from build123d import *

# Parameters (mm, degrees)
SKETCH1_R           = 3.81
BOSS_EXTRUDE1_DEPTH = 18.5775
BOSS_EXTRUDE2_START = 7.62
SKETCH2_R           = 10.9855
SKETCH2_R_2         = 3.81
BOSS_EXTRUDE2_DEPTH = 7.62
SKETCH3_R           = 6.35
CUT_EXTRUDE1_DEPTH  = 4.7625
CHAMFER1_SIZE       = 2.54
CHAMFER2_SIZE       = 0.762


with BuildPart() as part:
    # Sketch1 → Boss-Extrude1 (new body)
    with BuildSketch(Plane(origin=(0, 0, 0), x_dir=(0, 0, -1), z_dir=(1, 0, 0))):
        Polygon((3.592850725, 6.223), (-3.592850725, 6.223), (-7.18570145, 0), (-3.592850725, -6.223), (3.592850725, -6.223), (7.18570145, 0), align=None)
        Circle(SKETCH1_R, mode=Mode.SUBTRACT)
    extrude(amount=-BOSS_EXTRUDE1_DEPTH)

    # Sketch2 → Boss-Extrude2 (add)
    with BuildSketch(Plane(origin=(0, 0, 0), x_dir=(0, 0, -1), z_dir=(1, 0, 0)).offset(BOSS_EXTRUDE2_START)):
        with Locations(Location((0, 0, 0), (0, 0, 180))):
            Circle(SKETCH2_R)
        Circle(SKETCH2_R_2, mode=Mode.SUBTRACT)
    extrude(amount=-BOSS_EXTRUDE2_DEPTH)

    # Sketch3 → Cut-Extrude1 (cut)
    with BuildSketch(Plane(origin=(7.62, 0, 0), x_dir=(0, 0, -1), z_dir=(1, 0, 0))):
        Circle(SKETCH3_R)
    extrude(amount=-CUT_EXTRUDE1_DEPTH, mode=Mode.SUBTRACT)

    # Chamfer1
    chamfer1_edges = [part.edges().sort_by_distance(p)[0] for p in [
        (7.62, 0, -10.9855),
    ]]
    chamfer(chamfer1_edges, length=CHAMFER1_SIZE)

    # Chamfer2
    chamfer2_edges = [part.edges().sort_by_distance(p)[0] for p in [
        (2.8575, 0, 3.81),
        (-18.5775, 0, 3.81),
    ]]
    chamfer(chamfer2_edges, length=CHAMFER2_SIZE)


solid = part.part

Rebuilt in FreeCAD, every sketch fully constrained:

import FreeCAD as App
import Part
import Sketcher
from FreeCAD import Vector
Q = App.Units.Quantity


def edges_at(feature, points):
    """Names of the edges that pass closest to the given points."""
    edges = feature.Shape.Edges
    near = lambda p: min(range(len(edges)), key=lambda i: edges[i].distToShape(Part.Vertex(*p))[0])
    return sorted({f"Edge{near(p) + 1}" for p in points})


def add_polygon(sketch, points):
    """Adds a closed chain of lines whose ends are joined by coincident constraints."""
    first, n = sketch.GeometryCount, len(points)
    for a, b in zip(points, points[1:] + points[:1]):
        sketch.addGeometry(Part.LineSegment(App.Vector(*a, 0), App.Vector(*b, 0)), False)
    for i in range(n):
        sketch.addConstraint(Sketcher.Constraint("Coincident", first + i, 2, first + (i + 1) % n, 1))

doc = App.newDocument("Part")
body = doc.addObject("PartDesign::Body", "Body")

sketch1 = doc.addObject("Sketcher::SketchObject", "Sketch")
body.addObject(sketch1)
sketch1.AttachmentSupport = (doc.YZ_Plane, [""])
sketch1.MapMode = "FlatFace"
add_polygon(sketch1, [(6.2, -3.6), (6.2, 3.6), (0, 7.2), (-6.2, 3.6), (-6.2, -3.6), (0, -7.2)])
sketch1.addGeometry(Part.Circle(Vector(0, 0, 0), Vector(0, 0, 1), 3.8), False)
sketch1.addConstraint(Sketcher.Constraint("Vertical", 0))
sketch1.addConstraint(Sketcher.Constraint("Vertical", 3))
sketch1.addConstraint(Sketcher.Constraint("Coincident", 6, 3, -1, 1))
sketch1.addConstraint(Sketcher.Constraint("Symmetric", 0, 2, 3, 2, -1, 1))
sketch1.addConstraint(Sketcher.Constraint("Symmetric", 1, 2, 4, 2, -1, 1))
sketch1.addConstraint(Sketcher.Constraint("PointOnObject", 1, 2, -2))
sketch1.addConstraint(Sketcher.Constraint("Parallel", 2, 5))
sketch1.addConstraint(Sketcher.Constraint("Horizontal", 0, 2, 2, 2))
sketch1.addConstraint(Sketcher.Constraint("Diameter", 6, Q("0.3 in")))
sketch1.addConstraint(Sketcher.Constraint("Angle", 1, Q("150 deg")))
sketch1.addConstraint(Sketcher.Constraint("DistanceX", 2, 2, 0, 2, Q("0.49 in")))
sketch1.addConstraint(Sketcher.Constraint("DistanceY", 0, 1, 0, 2, Q("7.185701 mm")))
pad1 = doc.addObject("PartDesign::Pad", "Pad")
body.addObject(pad1)
pad1.Profile = sketch1
pad1.Length = 18.5775
pad1.Reversed = True

sketch2 = doc.addObject("Sketcher::SketchObject", "Sketch001")
body.addObject(sketch2)
sketch2.AttachmentSupport = (doc.YZ_Plane, [""])
sketch2.MapMode = "FlatFace"
sketch2.AttachmentOffset = App.Placement(Vector(0, 0, 0.3 * 25.4), App.Rotation())
sketch2.addGeometry(Part.Circle(Vector(0, 0, 0), Vector(0, 0, 1), 11), False)
sketch2.addGeometry(Part.Circle(Vector(0, 0, 0), Vector(0, 0, 1), 3.8), False)
sketch2.addConstraint(Sketcher.Constraint("Coincident", 0, 3, -1, 1))
sketch2.addConstraint(Sketcher.Constraint("Coincident", 1, 3, -1, 1))
sketch2.addConstraint(Sketcher.Constraint("Diameter", 1, Q("0.3 in")))
sketch2.addConstraint(Sketcher.Constraint("Diameter", 0, Q("0.865 in")))
pad2 = doc.addObject("PartDesign::Pad", "Pad001")
body.addObject(pad2)
pad2.Profile = sketch2
pad2.Length = Q("0.3 in")
pad2.Reversed = True

sketch3 = doc.addObject("Sketcher::SketchObject", "Sketch002")
body.addObject(sketch3)
sketch3.AttachmentSupport = (doc.YZ_Plane, [""])
sketch3.MapMode = "FlatFace"
sketch3.AttachmentOffset = App.Placement(Vector(0, 0, 0.3 * 25.4), App.Rotation())
sketch3.addGeometry(Part.Circle(Vector(0, 0, 0), Vector(0, 0, 1), 6), False)
sketch3.addConstraint(Sketcher.Constraint("Coincident", 0, 3, -1, 1))
sketch3.addConstraint(Sketcher.Constraint("Diameter", 0, Q("0.5 in")))
pocket1 = doc.addObject("PartDesign::Pocket", "Pocket")
body.addObject(pocket1)
pocket1.Profile = sketch3
pocket1.Length = Q("0.1875 in")
doc.recompute()

chamfer = doc.addObject("PartDesign::Chamfer", "Chamfer")
body.addObject(chamfer)
chamfer.Base = (pocket1, edges_at(pocket1, [(7.62, 0, -10.986)]))
chamfer.Size = Q("0.1 in")
doc.recompute()

chamfer2 = doc.addObject("PartDesign::Chamfer", "Chamfer001")
body.addObject(chamfer2)
chamfer2.Base = (chamfer, edges_at(chamfer, [(2.857, 0, 3.81), (-18.578, 0, 3.81)]))
chamfer2.Size = Q("0.03 in")

doc.recompute()
